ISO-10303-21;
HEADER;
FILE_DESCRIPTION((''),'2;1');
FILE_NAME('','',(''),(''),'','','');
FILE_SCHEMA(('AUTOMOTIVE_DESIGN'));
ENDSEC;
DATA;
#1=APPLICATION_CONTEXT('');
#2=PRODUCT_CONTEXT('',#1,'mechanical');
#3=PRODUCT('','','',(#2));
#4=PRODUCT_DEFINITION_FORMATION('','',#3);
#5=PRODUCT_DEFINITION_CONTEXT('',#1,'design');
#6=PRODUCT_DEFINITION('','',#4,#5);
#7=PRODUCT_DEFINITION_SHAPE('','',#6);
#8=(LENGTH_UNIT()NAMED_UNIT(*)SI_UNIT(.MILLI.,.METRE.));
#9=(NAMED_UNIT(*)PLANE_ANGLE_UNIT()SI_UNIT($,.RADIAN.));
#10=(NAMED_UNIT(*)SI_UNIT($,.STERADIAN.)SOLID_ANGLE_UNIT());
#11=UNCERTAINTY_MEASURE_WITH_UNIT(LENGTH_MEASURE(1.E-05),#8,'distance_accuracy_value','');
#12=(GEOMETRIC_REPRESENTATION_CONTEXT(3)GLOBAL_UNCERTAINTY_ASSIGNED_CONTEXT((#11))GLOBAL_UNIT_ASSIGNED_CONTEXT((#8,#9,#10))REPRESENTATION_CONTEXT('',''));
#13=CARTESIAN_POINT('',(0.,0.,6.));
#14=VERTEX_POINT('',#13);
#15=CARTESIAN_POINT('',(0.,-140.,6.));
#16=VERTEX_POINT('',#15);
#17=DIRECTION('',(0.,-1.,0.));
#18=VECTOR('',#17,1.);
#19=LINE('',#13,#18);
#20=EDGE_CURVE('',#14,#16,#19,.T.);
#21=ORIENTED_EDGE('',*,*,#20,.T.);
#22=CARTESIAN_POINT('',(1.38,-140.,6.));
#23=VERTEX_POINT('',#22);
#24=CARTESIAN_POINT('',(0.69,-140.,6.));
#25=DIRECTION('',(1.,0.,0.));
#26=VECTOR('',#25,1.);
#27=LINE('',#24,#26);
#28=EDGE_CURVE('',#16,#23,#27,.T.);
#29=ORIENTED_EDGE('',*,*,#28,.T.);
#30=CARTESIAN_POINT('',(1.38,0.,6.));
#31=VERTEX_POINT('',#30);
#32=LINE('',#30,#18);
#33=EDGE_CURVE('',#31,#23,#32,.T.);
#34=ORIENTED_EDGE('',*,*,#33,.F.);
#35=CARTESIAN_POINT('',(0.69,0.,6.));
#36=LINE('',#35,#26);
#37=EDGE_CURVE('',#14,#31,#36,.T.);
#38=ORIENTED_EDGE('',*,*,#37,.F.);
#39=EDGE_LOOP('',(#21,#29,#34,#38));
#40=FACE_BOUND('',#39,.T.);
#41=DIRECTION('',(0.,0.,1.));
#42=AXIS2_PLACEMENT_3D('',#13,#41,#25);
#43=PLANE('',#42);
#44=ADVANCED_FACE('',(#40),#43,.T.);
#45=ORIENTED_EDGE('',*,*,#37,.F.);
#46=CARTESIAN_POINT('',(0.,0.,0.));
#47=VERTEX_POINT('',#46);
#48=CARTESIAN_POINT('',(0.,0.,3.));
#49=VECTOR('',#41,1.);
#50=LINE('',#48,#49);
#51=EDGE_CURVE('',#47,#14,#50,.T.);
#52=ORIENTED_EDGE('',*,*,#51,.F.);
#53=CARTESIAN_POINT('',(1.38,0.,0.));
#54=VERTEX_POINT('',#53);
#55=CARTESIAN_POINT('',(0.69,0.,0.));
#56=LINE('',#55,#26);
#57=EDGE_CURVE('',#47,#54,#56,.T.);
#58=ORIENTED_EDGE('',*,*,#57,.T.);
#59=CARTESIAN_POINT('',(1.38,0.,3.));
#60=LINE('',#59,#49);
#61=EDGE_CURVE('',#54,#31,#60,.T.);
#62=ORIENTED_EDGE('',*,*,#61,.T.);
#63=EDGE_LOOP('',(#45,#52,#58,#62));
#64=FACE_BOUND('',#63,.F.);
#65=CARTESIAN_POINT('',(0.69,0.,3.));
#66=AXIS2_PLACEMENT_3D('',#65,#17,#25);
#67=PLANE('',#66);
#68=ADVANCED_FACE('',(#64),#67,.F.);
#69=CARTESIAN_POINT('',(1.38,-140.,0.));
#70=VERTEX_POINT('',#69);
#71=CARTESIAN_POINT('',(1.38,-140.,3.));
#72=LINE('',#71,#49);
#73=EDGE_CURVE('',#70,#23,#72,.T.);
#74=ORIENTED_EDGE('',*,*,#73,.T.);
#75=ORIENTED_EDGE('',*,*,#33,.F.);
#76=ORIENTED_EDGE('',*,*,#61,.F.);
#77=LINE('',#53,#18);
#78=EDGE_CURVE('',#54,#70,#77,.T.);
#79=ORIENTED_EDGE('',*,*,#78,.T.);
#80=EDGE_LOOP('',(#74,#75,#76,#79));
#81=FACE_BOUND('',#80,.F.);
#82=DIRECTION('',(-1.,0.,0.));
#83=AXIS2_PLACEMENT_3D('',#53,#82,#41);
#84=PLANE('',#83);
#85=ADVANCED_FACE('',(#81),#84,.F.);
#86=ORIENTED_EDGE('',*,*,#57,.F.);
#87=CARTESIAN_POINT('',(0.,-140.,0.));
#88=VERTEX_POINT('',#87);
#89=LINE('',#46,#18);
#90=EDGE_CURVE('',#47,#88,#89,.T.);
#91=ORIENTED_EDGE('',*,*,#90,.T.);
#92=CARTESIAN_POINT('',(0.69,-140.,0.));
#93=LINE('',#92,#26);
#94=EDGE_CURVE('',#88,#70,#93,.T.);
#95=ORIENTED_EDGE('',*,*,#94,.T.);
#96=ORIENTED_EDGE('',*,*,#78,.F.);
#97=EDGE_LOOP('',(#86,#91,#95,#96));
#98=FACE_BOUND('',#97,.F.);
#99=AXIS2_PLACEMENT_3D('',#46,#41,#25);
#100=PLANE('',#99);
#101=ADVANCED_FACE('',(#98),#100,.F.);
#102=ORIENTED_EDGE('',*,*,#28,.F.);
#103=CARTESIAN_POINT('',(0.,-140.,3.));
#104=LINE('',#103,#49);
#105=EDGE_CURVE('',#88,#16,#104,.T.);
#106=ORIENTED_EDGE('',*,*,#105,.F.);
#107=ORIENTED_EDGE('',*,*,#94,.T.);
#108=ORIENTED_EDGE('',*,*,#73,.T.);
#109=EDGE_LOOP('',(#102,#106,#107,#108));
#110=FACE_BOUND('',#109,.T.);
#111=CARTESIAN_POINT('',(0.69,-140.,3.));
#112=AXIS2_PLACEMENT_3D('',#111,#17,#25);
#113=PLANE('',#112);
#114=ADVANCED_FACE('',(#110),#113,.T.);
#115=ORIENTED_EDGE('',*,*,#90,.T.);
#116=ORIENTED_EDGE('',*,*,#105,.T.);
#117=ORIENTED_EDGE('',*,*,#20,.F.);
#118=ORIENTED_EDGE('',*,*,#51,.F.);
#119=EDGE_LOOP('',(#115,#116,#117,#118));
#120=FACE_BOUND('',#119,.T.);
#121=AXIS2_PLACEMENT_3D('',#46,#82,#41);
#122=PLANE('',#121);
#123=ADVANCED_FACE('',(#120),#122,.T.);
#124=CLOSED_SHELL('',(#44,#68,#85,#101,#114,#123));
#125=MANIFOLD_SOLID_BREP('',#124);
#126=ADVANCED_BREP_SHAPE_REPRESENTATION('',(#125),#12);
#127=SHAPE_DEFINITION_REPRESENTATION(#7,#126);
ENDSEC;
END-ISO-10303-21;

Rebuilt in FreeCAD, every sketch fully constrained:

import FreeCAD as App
import Part
import Sketcher

V = App.Vector


def add_polygon(sketch, points):
    """Adds a closed chain of lines whose ends are joined by coincident constraints."""
    first, n = sketch.GeometryCount, len(points)
    for a, b in zip(points, points[1:] + points[:1]):
        sketch.addGeometry(Part.LineSegment(App.Vector(*a, 0), App.Vector(*b, 0)), False)
    for i in range(n):
        sketch.addConstraint(Sketcher.Constraint("Coincident", first + i, 2, first + (i + 1) % n, 1))

doc = App.newDocument("Part")
body = doc.addObject("PartDesign::Body", "Body")

sketch1 = body.newObject("Sketcher::SketchObject", "Sketch")
sketch1.AttachmentSupport = (doc.getObject("XZ_Plane"), [""])
sketch1.MapMode = "FlatFace"
add_polygon(sketch1, [(0, 6), (0, 0), (1.4, 0), (1.4, 6)])
sketch1.addConstraint([
    Sketcher.Constraint("Vertical", 0),
    Sketcher.Constraint("Horizontal", 1),
    Sketcher.Constraint("Vertical", 2),
    Sketcher.Constraint("Horizontal", 3),
    Sketcher.Constraint("Coincident", 0, 2, -1, 1),
    Sketcher.Constraint("DistanceY", 0, 2, 0, 1, 6.0),
    Sketcher.Constraint("DistanceX", 1, 1, 1, 2, 1.38),
])
pad1 = body.newObject("PartDesign::Pad", "Pad")
pad1.Profile = sketch1
pad1.Length = 140

doc.recompute()
